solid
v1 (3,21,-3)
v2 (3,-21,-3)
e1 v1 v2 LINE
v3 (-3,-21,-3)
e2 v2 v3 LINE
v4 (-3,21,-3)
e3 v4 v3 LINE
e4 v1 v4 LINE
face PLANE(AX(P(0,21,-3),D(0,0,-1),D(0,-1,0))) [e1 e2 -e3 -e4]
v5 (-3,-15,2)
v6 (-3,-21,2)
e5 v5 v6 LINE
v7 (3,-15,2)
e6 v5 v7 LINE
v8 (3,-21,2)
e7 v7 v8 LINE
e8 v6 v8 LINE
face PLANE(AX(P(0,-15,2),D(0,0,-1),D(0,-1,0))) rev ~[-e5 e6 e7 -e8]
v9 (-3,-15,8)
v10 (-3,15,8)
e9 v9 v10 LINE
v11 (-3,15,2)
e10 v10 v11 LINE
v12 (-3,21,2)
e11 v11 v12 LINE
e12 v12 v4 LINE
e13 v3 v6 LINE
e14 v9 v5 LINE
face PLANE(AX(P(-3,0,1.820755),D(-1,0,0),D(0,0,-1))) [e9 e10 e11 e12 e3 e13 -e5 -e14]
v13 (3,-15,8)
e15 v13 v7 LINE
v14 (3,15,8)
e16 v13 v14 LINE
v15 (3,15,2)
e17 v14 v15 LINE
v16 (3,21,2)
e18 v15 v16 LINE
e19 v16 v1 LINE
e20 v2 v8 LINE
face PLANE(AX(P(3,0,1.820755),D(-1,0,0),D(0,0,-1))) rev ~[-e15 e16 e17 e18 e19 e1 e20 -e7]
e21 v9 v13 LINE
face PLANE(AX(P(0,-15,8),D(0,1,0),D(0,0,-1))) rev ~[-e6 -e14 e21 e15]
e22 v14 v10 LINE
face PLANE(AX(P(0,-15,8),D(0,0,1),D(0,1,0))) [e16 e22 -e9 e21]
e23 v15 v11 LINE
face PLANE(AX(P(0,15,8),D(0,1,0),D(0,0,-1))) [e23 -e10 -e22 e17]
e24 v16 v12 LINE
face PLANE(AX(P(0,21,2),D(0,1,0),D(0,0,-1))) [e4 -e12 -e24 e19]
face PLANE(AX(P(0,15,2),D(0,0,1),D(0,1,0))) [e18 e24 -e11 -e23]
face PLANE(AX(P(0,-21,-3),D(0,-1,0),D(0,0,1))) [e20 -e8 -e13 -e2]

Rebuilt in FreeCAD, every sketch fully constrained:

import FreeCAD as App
import Part
import Sketcher
from FreeCAD import Vector
Q = App.Units.Quantity


def add_polygon(sketch, points):
    """Adds a closed chain of lines whose ends are joined by coincident constraints."""
    first, n = sketch.GeometryCount, len(points)
    for a, b in zip(points, points[1:] + points[:1]):
        sketch.addGeometry(Part.LineSegment(App.Vector(*a, 0), App.Vector(*b, 0)), False)
    for i in range(n):
        sketch.addConstraint(Sketcher.Constraint("Coincident", first + i, 2, first + (i + 1) % n, 1))

doc = App.newDocument("Part")
body = doc.addObject("PartDesign::Body", "Body")

# Sketch on YZ plane
sketch1 = body.newObject("Sketcher::SketchObject", "Sketch")
sketch1.AttachmentSupport = (doc.getObject("YZ_Plane"), [""])
sketch1.MapMode = "FlatFace"
add_polygon(sketch1, [(15, 8), (-15, 8), (-15, 2), (-21, 2), (-21, -3), (21, -3), (21, 2), (15, 2)])  # lines 0-7
sketch1.addConstraint([
    Sketcher.Constraint("Horizontal", 0),
    Sketcher.Constraint("Vertical", 1),
    Sketcher.Constraint("Horizontal", 2),
    Sketcher.Constraint("Vertical", 3),
    Sketcher.Constraint("Horizontal", 4),
    Sketcher.Constraint("Vertical", 5),
    Sketcher.Constraint("Horizontal", 6),
    Sketcher.Constraint("Vertical", 7),
    Sketcher.Constraint("Symmetric", 2, 2, 5, 2, -2),
    Sketcher.Constraint("Equal", 2, 6),
    Sketcher.Constraint("Equal", 6, 1),
    Sketcher.Constraint("DistanceX", 0, 2, 0, 1, Q("30 mm")),
    Sketcher.Constraint("DistanceX", 2, 2, 2, 1, Q("6 mm")),
    Sketcher.Constraint("DistanceY", 3, 2, 3, 1, Q("5 mm")),
    Sketcher.Constraint("DistanceY", -1, 1, 0, 2, Q("8 mm")),
])
pad1 = body.newObject("PartDesign::Pad", "Pad")
pad1.Profile = sketch1
pad1.Length = 6
pad1.Midplane = True

doc.recompute()
